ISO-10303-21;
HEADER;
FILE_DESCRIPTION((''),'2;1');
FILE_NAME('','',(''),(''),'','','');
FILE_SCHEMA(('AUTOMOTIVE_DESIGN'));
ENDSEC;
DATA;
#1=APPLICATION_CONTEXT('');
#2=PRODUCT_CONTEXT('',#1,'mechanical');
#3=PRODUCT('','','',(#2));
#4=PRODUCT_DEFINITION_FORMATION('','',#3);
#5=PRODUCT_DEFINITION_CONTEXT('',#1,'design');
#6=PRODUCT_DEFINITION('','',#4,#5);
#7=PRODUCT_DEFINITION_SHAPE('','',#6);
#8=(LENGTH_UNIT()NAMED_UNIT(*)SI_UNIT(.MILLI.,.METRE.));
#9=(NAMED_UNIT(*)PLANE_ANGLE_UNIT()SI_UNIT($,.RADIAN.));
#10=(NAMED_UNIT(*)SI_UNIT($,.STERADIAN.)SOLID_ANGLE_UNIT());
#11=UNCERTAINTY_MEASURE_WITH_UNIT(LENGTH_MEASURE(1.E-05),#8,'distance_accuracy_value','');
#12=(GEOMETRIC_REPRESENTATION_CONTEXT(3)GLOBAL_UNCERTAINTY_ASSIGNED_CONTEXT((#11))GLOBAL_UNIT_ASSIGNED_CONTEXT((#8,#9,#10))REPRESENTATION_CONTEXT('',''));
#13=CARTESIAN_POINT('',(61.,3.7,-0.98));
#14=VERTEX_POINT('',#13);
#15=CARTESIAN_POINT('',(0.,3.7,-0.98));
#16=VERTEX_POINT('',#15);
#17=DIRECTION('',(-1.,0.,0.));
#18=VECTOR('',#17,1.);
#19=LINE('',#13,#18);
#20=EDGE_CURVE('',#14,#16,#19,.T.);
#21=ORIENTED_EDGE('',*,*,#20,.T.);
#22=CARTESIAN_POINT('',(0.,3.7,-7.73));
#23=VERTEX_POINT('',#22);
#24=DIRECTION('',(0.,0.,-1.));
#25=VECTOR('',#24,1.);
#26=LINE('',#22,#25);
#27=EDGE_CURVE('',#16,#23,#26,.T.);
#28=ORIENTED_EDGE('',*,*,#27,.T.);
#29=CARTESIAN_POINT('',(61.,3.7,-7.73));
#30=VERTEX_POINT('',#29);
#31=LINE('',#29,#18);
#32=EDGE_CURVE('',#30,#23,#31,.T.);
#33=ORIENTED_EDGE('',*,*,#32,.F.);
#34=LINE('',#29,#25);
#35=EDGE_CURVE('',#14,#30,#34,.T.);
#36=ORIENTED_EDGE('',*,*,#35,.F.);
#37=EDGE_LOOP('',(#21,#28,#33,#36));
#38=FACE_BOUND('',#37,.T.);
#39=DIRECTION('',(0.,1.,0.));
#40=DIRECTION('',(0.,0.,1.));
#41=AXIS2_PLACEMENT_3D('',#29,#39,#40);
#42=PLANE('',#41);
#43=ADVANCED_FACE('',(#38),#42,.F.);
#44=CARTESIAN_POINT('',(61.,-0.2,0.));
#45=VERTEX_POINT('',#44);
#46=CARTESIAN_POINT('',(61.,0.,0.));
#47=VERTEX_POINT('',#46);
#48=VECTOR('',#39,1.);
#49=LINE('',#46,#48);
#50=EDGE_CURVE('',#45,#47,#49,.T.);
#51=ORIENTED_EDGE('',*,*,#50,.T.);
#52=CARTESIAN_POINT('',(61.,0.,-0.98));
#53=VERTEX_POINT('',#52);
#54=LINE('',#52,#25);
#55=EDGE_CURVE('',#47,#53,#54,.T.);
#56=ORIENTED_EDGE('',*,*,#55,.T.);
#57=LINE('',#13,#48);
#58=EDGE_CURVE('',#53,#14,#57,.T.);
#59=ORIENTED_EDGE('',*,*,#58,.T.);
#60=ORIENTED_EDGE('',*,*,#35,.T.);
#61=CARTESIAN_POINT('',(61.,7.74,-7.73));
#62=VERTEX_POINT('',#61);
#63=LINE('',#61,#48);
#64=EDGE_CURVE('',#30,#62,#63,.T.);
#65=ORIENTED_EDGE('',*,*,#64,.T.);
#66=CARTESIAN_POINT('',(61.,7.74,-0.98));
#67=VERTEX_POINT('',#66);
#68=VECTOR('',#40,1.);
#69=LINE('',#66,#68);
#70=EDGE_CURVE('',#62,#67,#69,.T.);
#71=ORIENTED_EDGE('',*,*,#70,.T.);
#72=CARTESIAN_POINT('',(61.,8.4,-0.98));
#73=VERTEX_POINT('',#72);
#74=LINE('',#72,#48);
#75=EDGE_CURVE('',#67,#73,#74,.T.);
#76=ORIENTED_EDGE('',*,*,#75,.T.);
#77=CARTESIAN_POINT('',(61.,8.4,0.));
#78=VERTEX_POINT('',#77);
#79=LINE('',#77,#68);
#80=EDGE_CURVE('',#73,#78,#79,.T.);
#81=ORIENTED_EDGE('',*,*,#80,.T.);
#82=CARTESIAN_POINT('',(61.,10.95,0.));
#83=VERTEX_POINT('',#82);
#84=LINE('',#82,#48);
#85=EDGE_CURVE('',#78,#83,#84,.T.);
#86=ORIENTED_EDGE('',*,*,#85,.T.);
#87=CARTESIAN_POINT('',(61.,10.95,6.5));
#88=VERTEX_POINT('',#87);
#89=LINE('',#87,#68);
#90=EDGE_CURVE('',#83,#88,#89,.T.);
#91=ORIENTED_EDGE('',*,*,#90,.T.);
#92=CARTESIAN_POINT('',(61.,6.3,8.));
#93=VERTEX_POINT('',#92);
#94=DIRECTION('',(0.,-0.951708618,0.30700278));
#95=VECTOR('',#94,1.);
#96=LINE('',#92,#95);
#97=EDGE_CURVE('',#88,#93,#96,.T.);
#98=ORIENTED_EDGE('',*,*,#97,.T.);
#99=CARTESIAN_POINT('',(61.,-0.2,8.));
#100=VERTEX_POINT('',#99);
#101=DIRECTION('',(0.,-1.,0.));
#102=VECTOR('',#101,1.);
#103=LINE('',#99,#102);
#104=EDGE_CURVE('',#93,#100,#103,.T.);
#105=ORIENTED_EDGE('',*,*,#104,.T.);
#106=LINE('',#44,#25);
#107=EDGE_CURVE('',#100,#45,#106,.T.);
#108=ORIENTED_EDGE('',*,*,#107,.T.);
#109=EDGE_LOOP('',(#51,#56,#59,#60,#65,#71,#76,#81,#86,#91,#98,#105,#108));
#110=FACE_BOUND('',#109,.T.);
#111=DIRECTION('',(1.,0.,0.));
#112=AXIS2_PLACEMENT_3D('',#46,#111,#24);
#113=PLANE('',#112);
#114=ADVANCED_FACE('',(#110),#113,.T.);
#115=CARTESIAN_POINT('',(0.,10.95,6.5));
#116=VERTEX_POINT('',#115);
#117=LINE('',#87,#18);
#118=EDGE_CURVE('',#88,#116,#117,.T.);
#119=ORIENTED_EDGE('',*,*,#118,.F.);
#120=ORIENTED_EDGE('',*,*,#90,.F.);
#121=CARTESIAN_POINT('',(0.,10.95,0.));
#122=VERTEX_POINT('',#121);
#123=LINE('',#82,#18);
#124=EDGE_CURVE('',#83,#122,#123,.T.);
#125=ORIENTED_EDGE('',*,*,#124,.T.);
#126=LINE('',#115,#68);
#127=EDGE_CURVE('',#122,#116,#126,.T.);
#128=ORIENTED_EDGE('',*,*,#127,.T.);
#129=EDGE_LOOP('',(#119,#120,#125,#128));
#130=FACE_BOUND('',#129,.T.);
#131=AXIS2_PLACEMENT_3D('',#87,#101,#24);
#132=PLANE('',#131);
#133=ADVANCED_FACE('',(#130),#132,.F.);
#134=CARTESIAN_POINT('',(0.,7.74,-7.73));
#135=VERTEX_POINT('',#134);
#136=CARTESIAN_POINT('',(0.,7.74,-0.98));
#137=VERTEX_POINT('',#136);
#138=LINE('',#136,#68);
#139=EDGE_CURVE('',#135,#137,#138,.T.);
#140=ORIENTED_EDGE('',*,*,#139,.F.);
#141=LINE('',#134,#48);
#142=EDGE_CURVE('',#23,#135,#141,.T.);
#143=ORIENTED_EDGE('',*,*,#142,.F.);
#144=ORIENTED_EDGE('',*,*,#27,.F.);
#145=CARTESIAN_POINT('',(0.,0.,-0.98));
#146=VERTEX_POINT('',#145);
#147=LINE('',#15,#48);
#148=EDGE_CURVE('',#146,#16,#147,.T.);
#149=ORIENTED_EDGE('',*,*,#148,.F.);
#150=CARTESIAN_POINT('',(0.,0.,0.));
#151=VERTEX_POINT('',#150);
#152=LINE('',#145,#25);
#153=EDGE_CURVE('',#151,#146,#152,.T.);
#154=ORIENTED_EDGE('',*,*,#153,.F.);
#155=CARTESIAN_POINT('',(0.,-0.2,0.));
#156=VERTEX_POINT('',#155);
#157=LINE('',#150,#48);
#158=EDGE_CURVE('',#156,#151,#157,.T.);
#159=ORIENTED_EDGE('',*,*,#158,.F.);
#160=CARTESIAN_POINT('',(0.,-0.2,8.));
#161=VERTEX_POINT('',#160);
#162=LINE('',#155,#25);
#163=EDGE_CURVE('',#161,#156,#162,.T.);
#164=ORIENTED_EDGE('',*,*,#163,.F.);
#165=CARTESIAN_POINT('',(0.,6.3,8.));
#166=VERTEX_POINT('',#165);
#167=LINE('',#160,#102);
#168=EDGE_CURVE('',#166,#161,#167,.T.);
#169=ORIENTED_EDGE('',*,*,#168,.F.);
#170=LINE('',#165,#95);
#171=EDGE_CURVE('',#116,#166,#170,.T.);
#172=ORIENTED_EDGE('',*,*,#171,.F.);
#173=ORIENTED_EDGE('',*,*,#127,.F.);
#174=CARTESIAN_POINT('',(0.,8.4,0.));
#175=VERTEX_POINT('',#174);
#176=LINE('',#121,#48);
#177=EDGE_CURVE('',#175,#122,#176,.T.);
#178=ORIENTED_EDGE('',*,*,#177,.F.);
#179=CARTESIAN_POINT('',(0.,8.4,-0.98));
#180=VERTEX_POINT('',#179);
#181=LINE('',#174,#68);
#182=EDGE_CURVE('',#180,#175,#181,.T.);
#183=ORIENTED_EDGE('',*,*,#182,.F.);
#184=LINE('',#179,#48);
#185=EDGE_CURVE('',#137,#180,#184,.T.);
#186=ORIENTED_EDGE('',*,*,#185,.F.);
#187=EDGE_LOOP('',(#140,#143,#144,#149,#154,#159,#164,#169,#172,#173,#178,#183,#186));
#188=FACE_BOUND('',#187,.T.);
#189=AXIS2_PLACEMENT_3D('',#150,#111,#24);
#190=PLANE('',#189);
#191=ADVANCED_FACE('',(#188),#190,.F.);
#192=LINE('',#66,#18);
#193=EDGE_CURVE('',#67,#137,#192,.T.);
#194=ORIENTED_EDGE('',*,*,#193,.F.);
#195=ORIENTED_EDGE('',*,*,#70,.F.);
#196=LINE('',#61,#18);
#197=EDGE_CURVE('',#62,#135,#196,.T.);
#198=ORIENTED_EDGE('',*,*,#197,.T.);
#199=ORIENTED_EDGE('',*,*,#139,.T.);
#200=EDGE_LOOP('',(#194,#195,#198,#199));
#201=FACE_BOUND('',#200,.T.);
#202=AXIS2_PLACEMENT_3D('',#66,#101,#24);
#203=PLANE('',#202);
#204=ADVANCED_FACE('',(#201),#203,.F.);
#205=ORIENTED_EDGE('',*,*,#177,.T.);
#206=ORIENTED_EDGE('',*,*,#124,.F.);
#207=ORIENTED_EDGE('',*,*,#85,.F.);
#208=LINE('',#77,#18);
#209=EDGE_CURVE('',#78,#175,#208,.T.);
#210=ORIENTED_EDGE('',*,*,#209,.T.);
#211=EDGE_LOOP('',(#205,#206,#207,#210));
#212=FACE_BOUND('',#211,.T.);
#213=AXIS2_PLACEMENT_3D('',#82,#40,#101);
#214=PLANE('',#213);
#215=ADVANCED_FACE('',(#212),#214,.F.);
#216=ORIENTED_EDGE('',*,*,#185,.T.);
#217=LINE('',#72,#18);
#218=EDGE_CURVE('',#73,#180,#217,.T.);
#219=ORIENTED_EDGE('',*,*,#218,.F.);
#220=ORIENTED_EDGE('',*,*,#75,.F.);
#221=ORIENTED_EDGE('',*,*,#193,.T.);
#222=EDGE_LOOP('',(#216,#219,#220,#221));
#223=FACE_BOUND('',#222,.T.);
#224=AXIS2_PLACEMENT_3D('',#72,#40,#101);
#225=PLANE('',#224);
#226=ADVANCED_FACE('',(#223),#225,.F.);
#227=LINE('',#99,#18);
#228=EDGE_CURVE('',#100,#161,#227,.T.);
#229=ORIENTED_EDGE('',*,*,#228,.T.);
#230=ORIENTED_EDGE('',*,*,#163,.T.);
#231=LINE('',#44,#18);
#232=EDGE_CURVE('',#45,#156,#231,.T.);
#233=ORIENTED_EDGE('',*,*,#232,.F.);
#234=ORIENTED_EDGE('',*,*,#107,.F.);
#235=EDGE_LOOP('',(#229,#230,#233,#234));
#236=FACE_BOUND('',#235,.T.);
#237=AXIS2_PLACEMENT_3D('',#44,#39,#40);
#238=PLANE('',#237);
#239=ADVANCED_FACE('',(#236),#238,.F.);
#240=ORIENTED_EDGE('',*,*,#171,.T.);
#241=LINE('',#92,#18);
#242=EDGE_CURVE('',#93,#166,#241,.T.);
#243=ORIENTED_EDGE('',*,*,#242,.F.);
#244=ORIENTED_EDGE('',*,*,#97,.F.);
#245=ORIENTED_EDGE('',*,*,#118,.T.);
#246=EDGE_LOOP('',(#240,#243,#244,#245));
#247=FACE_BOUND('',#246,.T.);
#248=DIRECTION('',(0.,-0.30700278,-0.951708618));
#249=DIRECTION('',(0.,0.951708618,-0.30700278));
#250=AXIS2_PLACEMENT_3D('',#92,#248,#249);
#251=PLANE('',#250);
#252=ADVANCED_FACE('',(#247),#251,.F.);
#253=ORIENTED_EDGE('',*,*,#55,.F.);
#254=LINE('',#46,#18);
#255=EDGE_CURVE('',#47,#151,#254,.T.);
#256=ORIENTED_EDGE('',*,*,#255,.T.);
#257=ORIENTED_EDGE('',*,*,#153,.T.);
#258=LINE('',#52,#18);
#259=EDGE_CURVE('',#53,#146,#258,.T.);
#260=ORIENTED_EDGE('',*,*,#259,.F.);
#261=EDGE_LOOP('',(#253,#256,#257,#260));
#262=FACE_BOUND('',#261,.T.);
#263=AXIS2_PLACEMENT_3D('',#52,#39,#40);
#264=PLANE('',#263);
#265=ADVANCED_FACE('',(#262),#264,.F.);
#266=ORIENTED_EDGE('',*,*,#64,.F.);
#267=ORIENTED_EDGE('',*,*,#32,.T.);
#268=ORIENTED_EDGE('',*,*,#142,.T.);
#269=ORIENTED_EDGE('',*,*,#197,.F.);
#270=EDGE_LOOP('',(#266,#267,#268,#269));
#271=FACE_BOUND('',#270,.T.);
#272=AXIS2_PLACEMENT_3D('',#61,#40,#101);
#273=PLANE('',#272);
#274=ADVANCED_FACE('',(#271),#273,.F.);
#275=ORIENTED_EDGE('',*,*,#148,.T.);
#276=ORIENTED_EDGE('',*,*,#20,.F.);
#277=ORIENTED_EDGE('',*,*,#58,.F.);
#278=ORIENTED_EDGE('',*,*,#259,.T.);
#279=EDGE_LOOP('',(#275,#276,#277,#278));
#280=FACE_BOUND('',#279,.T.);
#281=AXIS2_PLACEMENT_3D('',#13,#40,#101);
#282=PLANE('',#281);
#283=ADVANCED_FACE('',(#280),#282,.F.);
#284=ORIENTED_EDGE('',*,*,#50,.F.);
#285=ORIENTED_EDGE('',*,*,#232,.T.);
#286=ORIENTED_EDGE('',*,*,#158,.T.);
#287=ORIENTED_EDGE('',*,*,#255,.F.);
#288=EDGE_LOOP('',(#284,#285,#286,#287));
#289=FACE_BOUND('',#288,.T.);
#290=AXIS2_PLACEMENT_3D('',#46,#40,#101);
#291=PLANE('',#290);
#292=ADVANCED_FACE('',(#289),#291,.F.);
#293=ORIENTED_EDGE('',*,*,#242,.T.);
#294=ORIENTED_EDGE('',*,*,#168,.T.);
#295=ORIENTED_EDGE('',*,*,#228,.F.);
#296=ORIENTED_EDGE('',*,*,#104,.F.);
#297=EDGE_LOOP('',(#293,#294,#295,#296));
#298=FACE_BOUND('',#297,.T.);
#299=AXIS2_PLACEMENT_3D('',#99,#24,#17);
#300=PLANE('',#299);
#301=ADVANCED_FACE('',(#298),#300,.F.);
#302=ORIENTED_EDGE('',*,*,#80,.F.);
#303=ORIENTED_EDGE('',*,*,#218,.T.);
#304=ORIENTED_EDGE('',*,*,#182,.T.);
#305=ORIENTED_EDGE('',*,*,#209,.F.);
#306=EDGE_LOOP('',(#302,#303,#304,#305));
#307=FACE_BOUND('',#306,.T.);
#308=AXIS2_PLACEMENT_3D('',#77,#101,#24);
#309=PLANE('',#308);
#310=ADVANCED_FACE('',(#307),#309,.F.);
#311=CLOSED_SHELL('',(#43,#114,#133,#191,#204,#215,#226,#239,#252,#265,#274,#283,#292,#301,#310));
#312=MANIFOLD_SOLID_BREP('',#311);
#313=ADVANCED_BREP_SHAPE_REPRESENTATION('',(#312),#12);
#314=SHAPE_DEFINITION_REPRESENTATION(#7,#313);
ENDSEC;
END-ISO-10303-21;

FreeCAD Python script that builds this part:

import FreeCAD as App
import Part
import Sketcher
from FreeCAD import Vector

doc = App.newDocument("Part")
body = doc.addObject("PartDesign::Body", "Body")

sketch1 = body.newObject("Sketcher::SketchObject", "Sketch")
sketch1.AttachmentSupport = (doc.getObject("YZ_Plane"), [""])
sketch1.MapMode = "FlatFace"
sketch1.addGeometry([
    Part.LineSegment(Vector(-0.2, 0, 0), Vector(0, 0, 0)),
    Part.LineSegment(Vector(0, 0, 0), Vector(0, -0.98, 0)),
    Part.LineSegment(Vector(0, -0.98, 0), Vector(3.7, -0.98, 0)),
    Part.LineSegment(Vector(3.7, -0.98, 0), Vector(3.7, -7.73, 0)),
    Part.LineSegment(Vector(3.7, -7.73, 0), Vector(7.74, -7.73, 0)),
    Part.LineSegment(Vector(7.74, -7.73, 0), Vector(7.74, -0.98, 0)),
    Part.LineSegment(Vector(7.74, -0.98, 0), Vector(8.4, -0.98, 0)),
    Part.LineSegment(Vector(8.4, -0.98, 0), Vector(8.4, 0, 0)),
    Part.LineSegment(Vector(8.4, 0, 0), Vector(10.95, 0, 0)),
    Part.LineSegment(Vector(10.95, 0, 0), Vector(10.95, 6.5, 0)),
    Part.LineSegment(Vector(10.95, 6.5, 0), Vector(6.3, 8, 0)),
    Part.LineSegment(Vector(6.3, 8, 0), Vector(-0.2, 8, 0)),
    Part.LineSegment(Vector(-0.2, 8, 0), Vector(-0.2, 0, 0)),
], False)
sketch1.addConstraint([
    Sketcher.Constraint("Coincident", 0, 2, 1, 1),
    Sketcher.Constraint("Coincident", 1, 2, 2, 1),
    Sketcher.Constraint("Coincident", 2, 2, 3, 1),
    Sketcher.Constraint("Coincident", 3, 2, 4, 1),
    Sketcher.Constraint("Coincident", 4, 2, 5, 1),
    Sketcher.Constraint("Coincident", 5, 2, 6, 1),
    Sketcher.Constraint("Coincident", 6, 2, 7, 1),
    Sketcher.Constraint("Coincident", 7, 2, 8, 1),
    Sketcher.Constraint("Coincident", 8, 2, 9, 1),
    Sketcher.Constraint("Coincident", 9, 2, 10, 1),
    Sketcher.Constraint("Coincident", 10, 2, 11, 1),
    Sketcher.Constraint("Coincident", 11, 2, 12, 1),
    Sketcher.Constraint("Coincident", 12, 2, 0, 1),
    Sketcher.Constraint("Horizontal", 0),
    Sketcher.Constraint("Vertical", 1),
    Sketcher.Constraint("Horizontal", 2),
    Sketcher.Constraint("Vertical", 3),
    Sketcher.Constraint("Horizontal", 4),
    Sketcher.Constraint("Vertical", 5),
    Sketcher.Constraint("Horizontal", 6),
    Sketcher.Constraint("Vertical", 7),
    Sketcher.Constraint("Horizontal", 8),
    Sketcher.Constraint("Vertical", 9),
    Sketcher.Constraint("Horizontal", 11),
    Sketcher.Constraint("Vertical", 12),
    Sketcher.Constraint("Coincident", 0, 2, -1, 1),
    Sketcher.Constraint("PointOnObject", 7, 2, -1),
    Sketcher.Constraint("Horizontal", 2, 2, 5, 2),
    Sketcher.Constraint("Equal", 11, 9),
    Sketcher.Constraint("DistanceY", 12, 2, 12, 1, 8.0),
    Sketcher.Constraint("DistanceX", 0, 1, 0, 2, 0.2),
    Sketcher.Constraint("DistanceX", 2, 1, 2, 2, 3.7),
    Sketcher.Constraint("DistanceX", 11, 2, 11, 1, 6.5),
    Sketcher.Constraint("DistanceX", 4, 1, 4, 2, 4.04),
    Sketcher.Constraint("DistanceX", 6, 1, 6, 2, 0.66),
    Sketcher.Constraint("DistanceX", 8, 1, 8, 2, 2.55),
    Sketcher.Constraint("DistanceY", 1, 2, 1, 1, 0.98),
    Sketcher.Constraint("DistanceY", 3, 2, 3, 1, 6.75),
])
pad1 = body.newObject("PartDesign::Pad", "Pad")
pad1.Profile = sketch1
pad1.Length = 61

doc.recompute()
